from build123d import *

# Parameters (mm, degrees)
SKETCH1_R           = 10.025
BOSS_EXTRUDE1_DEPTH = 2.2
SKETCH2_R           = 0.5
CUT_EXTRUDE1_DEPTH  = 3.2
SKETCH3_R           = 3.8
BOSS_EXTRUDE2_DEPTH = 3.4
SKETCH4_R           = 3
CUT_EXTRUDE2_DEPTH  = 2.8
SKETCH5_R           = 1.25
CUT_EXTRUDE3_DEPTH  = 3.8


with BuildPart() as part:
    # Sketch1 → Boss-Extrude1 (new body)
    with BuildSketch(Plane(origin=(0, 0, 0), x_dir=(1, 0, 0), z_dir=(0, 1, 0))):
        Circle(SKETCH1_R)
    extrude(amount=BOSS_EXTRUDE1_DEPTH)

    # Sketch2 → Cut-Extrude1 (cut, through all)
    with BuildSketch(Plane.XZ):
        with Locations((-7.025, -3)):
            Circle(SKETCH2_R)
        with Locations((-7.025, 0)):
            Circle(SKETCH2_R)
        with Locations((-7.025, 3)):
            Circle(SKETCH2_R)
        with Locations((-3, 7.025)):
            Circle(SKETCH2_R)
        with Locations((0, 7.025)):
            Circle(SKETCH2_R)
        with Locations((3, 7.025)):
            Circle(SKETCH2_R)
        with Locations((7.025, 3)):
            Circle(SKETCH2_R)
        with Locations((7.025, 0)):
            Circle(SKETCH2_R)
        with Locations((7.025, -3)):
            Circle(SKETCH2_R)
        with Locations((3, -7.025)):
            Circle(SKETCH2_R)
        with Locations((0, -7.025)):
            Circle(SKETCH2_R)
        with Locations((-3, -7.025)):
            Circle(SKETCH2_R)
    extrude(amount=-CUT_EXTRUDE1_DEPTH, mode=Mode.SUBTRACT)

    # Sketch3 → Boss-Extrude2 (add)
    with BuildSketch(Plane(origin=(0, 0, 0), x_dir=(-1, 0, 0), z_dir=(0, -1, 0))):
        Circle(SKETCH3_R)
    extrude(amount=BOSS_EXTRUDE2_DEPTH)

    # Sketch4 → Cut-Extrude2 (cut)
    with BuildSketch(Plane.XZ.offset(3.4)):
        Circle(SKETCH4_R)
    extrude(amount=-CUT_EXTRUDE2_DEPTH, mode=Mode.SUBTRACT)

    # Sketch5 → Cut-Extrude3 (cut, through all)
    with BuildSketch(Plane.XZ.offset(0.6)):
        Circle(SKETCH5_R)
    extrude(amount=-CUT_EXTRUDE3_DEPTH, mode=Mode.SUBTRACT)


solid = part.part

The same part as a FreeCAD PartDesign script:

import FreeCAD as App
import Part
import Sketcher
from FreeCAD import Vector

doc = App.newDocument("Part")
body = doc.addObject("PartDesign::Body", "Body")

# Sketch on XZ plane
sketch1 = doc.addObject("Sketcher::SketchObject", "Sketch")
body.addObject(sketch1)
sketch1.AttachmentSupport = (doc.XZ_Plane, [""])
sketch1.MapMode = "FlatFace"
sketch1.addGeometry(Part.Circle(Vector(0, 0, 0), Vector(0, 0, 1), 10.025), False)
sketch1.addConstraint(Sketcher.Constraint("Coincident", 0, 3, -1, 1))
sketch1.addConstraint(Sketcher.Constraint("Diameter", 0, 20.05))
pad1 = doc.addObject("PartDesign::Pad", "Pad")
body.addObject(pad1)
pad1.Profile = sketch1
pad1.Length = 2.2
pad1.Reversed = True

# Sketch on XZ plane
sketch2 = doc.addObject("Sketcher::SketchObject", "Sketch001")
body.addObject(sketch2)
sketch2.AttachmentSupport = (doc.XZ_Plane, [""])
sketch2.MapMode = "FlatFace"
sketch2.addGeometry(Part.Circle(Vector(-7.025, -3, 0), Vector(0, 0, 1), 0.5), False)
sketch2.addGeometry(Part.Circle(Vector(-7.025, 0, 0), Vector(0, 0, 1), 0.5), False)
sketch2.addGeometry(Part.Circle(Vector(-7.025, 3, 0), Vector(0, 0, 1), 0.5), False)
sketch2.addGeometry(Part.Circle(Vector(-3, 7.025, 0), Vector(0, 0, 1), 0.5), False)
sketch2.addGeometry(Part.Circle(Vector(0, 7.025, 0), Vector(0, 0, 1), 0.5), False)
sketch2.addGeometry(Part.Circle(Vector(3, 7.025, 0), Vector(0, 0, 1), 0.5), False)
sketch2.addGeometry(Part.Circle(Vector(7.025, 3, 0), Vector(0, 0, 1), 0.5), False)
sketch2.addGeometry(Part.Circle(Vector(7.025, 0, 0), Vector(0, 0, 1), 0.5), False)
sketch2.addGeometry(Part.Circle(Vector(7.025, -3, 0), Vector(0, 0, 1), 0.5), False)
sketch2.addGeometry(Part.Circle(Vector(3, -7.025, 0), Vector(0, 0, 1), 0.5), False)
sketch2.addGeometry(Part.Circle(Vector(0, -7.025, 0), Vector(0, 0, 1), 0.5), False)
sketch2.addGeometry(Part.Circle(Vector(-3, -7.025, 0), Vector(0, 0, 1), 0.5), False)
sketch2.addConstraint(Sketcher.Constraint("Equal", 0, 1))
sketch2.addConstraint(Sketcher.Constraint("Equal", 1, 2))
sketch2.addConstraint(Sketcher.Constraint("Equal", 2, 3))
sketch2.addConstraint(Sketcher.Constraint("Equal", 3, 4))
sketch2.addConstraint(Sketcher.Constraint("Equal", 4, 5))
sketch2.addConstraint(Sketcher.Constraint("Equal", 5, 6))
sketch2.addConstraint(Sketcher.Constraint("Equal", 6, 7))
sketch2.addConstraint(Sketcher.Constraint("Equal", 7, 8))
sketch2.addConstraint(Sketcher.Constraint("Equal", 8, 9))
sketch2.addConstraint(Sketcher.Constraint("Equal", 9, 10))
sketch2.addConstraint(Sketcher.Constraint("Equal", 10, 11))
sketch2.addConstraint(Sketcher.Constraint("Symmetric", 0, 3, 6, 3, -1, 1))
sketch2.addConstraint(Sketcher.Constraint("Symmetric", 1, 3, 7, 3, -1, 1))
sketch2.addConstraint(Sketcher.Constraint("Symmetric", 2, 3, 8, 3, -1, 1))
sketch2.addConstraint(Sketcher.Constraint("Symmetric", 3, 3, 9, 3, -1, 1))
sketch2.addConstraint(Sketcher.Constraint("Symmetric", 4, 3, 10, 3, -1, 1))
sketch2.addConstraint(Sketcher.Constraint("Symmetric", 5, 3, 11, 3, -1, 1))
sketch2.addConstraint(Sketcher.Constraint("Symmetric", 3, 3, 5, 3, -2))
sketch2.addConstraint(Sketcher.Constraint("Symmetric", 2, 3, 6, 3, -2))
sketch2.addConstraint(Sketcher.Constraint("PointOnObject", 1, 3, -1))
sketch2.addConstraint(Sketcher.Constraint("PointOnObject", 4, 3, -2))
sketch2.addConstraint(Sketcher.Constraint("Horizontal", 3, 3, 4, 3))
sketch2.addConstraint(Sketcher.Constraint("Vertical", 0, 3, 1, 3))
sketch2.addConstraint(Sketcher.Constraint("Diameter", 0, 1.0))
sketch2.addConstraint(Sketcher.Constraint("DistanceY", 0, 3, -1, 1, 3.0))
sketch2.addConstraint(Sketcher.Constraint("DistanceX", 3, 3, -1, 1, 3.0))
sketch2.addConstraint(Sketcher.Constraint("DistanceX", 2, 3, 6, 3, 14.05))
sketch2.addConstraint(Sketcher.Constraint("DistanceY", -1, 1, 3, 3, 7.025))
pocket1 = doc.addObject("PartDesign::Pocket", "Pocket")
body.addObject(pocket1)
pocket1.Profile = sketch2
pocket1.Type = "ThroughAll"

# Sketch on XZ plane
sketch3 = doc.addObject("Sketcher::SketchObject", "Sketch002")
body.addObject(sketch3)
sketch3.AttachmentSupport = (doc.XZ_Plane, [""])
sketch3.MapMode = "FlatFace"
sketch3.addGeometry(Part.Circle(Vector(0, 0, 0), Vector(0, 0, 1), 3.8), False)
sketch3.addConstraint(Sketcher.Constraint("Coincident", 0, 3, -1, 1))
sketch3.addConstraint(Sketcher.Constraint("Diameter", 0, 7.6))
pad2 = doc.addObject("PartDesign::Pad", "Pad001")
body.addObject(pad2)
pad2.Profile = sketch3
pad2.Length = 3.4

# Sketch on XZ plane
sketch4 = doc.addObject("Sketcher::SketchObject", "Sketch003")
body.addObject(sketch4)
sketch4.AttachmentSupport = (doc.XZ_Plane, [""])
sketch4.MapMode = "FlatFace"
sketch4.AttachmentOffset = App.Placement(Vector(0, 0, 3.4), App.Rotation())
sketch4.addGeometry(Part.Circle(Vector(0, 0, 0), Vector(0, 0, 1), 3), False)
sketch4.addConstraint(Sketcher.Constraint("Coincident", 0, 3, -1, 1))
sketch4.addConstraint(Sketcher.Constraint("Diameter", 0, 6.0))
pocket2 = doc.addObject("PartDesign::Pocket", "Pocket001")
body.addObject(pocket2)
pocket2.Profile = sketch4
pocket2.Length = 2.8

# Sketch on XZ plane
sketch5 = doc.addObject("Sketcher::SketchObject", "Sketch004")
body.addObject(sketch5)
sketch5.AttachmentSupport = (doc.XZ_Plane, [""])
sketch5.MapMode = "FlatFace"
sketch5.AttachmentOffset = App.Placement(Vector(0, 0, 0.6), App.Rotation())
sketch5.addGeometry(Part.Circle(Vector(0, 0, 0), Vector(0, 0, 1), 1.25), False)
sketch5.addConstraint(Sketcher.Constraint("Coincident", 0, 3, -1, 1))
sketch5.addConstraint(Sketcher.Constraint("Diameter", 0, 2.5))
pocket3 = doc.addObject("PartDesign::Pocket", "Pocket002")
body.addObject(pocket3)
pocket3.Profile = sketch5
pocket3.Type = "ThroughAll"

doc.recompute()
